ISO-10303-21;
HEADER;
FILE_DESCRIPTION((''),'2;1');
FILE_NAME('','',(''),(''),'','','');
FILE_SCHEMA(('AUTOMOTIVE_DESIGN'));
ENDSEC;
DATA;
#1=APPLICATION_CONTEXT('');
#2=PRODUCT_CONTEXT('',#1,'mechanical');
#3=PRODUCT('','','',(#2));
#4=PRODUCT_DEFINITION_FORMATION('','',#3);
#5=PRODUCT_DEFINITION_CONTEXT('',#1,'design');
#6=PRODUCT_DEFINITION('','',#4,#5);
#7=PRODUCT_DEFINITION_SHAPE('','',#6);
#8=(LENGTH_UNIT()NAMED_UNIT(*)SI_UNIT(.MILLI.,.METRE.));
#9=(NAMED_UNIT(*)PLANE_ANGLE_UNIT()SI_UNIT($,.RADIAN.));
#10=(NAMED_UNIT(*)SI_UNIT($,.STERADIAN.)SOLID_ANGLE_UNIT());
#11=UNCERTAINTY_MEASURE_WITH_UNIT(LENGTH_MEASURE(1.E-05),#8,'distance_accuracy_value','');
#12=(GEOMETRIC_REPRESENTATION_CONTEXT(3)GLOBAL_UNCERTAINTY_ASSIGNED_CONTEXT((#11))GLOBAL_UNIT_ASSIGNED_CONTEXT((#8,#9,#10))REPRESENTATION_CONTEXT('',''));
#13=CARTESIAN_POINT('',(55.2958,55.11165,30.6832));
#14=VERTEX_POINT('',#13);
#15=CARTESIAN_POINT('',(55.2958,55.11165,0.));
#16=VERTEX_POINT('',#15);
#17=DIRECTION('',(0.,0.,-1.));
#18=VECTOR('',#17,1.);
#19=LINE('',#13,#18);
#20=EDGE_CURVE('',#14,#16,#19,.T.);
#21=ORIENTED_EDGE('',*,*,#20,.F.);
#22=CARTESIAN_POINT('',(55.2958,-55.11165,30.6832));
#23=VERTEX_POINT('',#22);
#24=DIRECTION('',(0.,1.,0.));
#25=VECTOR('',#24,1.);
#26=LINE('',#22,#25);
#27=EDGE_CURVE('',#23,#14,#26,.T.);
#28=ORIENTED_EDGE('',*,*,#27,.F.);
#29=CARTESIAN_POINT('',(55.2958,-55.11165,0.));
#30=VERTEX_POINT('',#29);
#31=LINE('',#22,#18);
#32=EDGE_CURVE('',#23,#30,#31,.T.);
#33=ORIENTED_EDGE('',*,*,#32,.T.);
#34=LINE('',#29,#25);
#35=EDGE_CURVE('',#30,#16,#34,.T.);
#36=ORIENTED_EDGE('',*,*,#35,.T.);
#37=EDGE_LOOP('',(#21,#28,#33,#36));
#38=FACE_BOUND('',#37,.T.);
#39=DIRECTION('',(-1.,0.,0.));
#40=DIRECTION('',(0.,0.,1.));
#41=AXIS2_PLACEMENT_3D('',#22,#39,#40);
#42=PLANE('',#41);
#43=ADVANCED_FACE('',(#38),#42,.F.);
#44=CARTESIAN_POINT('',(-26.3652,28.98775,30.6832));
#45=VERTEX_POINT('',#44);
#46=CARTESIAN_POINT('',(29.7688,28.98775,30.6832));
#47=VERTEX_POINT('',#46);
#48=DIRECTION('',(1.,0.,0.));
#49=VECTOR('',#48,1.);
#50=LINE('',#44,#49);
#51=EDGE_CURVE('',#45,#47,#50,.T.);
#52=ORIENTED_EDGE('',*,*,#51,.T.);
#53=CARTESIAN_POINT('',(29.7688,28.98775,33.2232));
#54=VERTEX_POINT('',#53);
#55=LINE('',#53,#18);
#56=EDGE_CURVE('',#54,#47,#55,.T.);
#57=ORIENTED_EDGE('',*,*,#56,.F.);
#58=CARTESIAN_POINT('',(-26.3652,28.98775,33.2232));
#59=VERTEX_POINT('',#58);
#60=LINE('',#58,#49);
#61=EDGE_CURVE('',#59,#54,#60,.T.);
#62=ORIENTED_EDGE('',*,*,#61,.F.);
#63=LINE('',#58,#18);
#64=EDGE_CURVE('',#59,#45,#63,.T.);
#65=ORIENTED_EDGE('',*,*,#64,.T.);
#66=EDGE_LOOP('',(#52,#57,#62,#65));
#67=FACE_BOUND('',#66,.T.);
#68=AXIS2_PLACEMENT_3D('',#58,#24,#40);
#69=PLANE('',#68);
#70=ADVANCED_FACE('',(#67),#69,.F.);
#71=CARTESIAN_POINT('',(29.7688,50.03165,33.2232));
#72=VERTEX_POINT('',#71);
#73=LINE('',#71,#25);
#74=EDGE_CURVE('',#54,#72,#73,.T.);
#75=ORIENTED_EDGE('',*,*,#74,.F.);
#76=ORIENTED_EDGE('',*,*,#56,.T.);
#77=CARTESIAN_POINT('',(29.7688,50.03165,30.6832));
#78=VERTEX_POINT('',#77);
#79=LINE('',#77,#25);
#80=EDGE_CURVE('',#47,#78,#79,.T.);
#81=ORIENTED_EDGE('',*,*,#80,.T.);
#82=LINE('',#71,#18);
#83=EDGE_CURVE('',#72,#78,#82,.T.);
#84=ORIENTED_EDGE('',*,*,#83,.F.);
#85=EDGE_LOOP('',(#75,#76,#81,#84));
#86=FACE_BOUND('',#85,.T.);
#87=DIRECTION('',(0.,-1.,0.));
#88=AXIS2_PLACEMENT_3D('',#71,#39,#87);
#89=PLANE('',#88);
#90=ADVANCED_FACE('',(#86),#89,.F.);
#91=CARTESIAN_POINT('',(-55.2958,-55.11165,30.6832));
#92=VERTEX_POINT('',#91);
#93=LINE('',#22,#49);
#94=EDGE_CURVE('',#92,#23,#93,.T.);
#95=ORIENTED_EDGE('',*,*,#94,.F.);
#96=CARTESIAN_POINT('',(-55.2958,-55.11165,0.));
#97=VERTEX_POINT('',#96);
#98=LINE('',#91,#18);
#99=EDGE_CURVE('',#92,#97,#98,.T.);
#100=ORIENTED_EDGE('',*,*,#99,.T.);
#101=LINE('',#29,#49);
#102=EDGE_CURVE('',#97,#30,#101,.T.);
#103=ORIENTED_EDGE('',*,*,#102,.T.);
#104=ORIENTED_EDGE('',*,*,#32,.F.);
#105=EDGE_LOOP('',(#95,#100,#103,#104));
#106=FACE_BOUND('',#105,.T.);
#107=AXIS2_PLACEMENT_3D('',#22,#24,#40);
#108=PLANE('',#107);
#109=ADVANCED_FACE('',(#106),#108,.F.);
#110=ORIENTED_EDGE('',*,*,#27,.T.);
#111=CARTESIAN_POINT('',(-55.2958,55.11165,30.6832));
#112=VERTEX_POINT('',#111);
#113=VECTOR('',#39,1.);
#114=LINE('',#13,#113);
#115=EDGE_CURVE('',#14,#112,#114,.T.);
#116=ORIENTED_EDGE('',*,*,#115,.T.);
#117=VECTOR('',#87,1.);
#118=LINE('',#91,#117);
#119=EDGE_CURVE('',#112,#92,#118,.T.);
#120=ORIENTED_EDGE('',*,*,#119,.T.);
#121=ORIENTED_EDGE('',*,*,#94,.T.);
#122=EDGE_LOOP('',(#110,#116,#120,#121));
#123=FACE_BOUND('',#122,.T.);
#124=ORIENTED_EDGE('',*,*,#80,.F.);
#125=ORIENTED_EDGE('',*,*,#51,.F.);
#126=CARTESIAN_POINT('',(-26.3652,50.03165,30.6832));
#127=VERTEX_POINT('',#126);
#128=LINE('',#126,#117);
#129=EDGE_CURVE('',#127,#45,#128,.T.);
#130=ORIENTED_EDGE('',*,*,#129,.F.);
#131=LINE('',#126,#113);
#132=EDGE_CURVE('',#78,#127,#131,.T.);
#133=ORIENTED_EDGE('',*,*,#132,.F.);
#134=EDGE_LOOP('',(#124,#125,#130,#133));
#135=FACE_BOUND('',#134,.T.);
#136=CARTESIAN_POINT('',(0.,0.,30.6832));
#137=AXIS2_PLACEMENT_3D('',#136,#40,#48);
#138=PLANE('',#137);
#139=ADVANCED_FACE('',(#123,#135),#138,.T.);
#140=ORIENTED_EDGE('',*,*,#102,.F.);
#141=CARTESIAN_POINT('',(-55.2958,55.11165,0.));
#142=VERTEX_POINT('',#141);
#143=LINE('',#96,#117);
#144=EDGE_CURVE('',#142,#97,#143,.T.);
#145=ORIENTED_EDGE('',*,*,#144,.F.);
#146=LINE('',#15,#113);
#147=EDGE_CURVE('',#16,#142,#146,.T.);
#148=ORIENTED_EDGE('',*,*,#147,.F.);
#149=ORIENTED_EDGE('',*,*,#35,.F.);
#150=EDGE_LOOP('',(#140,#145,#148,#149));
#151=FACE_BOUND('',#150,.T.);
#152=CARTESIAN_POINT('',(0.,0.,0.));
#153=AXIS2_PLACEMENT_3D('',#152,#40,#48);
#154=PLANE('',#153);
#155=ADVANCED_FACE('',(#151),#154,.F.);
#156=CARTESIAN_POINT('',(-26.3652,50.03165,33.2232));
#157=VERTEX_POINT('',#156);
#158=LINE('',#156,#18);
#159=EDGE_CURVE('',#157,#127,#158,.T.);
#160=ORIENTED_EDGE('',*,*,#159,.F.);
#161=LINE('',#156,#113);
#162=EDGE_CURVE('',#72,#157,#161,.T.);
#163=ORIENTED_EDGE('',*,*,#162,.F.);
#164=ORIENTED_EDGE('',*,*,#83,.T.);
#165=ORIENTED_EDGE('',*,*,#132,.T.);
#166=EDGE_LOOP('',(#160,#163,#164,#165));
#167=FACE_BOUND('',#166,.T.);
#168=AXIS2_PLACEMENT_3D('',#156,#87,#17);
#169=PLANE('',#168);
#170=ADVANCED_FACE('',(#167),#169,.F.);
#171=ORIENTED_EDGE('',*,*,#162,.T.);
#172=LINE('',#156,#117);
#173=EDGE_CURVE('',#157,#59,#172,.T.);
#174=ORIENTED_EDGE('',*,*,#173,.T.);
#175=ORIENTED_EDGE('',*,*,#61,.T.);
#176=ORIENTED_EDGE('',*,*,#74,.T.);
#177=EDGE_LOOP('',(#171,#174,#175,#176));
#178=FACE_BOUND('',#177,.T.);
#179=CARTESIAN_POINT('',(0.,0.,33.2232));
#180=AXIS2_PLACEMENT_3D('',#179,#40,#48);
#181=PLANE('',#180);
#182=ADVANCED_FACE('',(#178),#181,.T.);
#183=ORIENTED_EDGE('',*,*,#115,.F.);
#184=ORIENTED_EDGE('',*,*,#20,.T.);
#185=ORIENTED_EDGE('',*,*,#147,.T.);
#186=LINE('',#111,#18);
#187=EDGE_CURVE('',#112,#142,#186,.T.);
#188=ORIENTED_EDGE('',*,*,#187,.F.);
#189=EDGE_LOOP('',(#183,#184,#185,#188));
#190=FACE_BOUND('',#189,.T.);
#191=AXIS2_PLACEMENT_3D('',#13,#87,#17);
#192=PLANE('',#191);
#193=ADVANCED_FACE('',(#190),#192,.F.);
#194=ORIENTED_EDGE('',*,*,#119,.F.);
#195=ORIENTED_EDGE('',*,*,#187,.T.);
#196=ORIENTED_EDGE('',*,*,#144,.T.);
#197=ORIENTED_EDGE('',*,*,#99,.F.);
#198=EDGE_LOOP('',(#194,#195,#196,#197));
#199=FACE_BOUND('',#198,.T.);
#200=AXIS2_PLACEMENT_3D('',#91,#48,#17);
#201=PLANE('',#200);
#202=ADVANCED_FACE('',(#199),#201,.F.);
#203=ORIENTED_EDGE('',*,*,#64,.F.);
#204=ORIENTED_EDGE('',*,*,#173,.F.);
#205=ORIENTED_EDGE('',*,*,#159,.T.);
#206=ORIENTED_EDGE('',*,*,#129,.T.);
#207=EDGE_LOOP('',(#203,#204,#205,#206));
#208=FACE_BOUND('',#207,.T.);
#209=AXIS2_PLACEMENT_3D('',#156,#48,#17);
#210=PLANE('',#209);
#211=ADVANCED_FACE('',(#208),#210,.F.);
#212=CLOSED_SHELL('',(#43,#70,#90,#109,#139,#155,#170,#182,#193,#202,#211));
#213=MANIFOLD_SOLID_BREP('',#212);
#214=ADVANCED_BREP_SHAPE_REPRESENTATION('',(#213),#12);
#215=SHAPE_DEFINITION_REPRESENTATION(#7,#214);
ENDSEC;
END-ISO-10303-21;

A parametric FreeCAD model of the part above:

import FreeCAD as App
import Part
import Sketcher
Q = App.Units.Quantity


def add_polygon(sketch, points):
    """Adds a closed chain of lines whose ends are joined by coincident constraints."""
    first, n = sketch.GeometryCount, len(points)
    for a, b in zip(points, points[1:] + points[:1]):
        sketch.addGeometry(Part.LineSegment(App.Vector(*a, 0), App.Vector(*b, 0)), False)
    for i in range(n):
        sketch.addConstraint(Sketcher.Constraint("Coincident", first + i, 2, first + (i + 1) % n, 1))

doc = App.newDocument("Part")
body = doc.addObject("PartDesign::Body", "Body")

sketch1 = body.newObject("Sketcher::SketchObject", "Sketch")
sketch1.AttachmentSupport = (doc.getObject("XY_Plane"), [""])
sketch1.MapMode = "FlatFace"
add_polygon(sketch1, [(-55, 55), (-55, -55), (55, -55), (55, 55)])
sketch1.addConstraint(Sketcher.Constraint("Vertical", 0))
sketch1.addConstraint(Sketcher.Constraint("Horizontal", 1))
sketch1.addConstraint(Sketcher.Constraint("Vertical", 2))
sketch1.addConstraint(Sketcher.Constraint("Horizontal", 3))
sketch1.addConstraint(Sketcher.Constraint("Symmetric", 0, 2, 2, 2, -1, 1))
sketch1.addConstraint(Sketcher.Constraint("DistanceX", 1, 1, 1, 2, Q("4.354 in")))
sketch1.addConstraint(Sketcher.Constraint("DistanceY", 0, 2, 0, 1, Q("4.3395 in")))
pad1 = body.newObject("PartDesign::Pad", "Pad")
pad1.Profile = sketch1
pad1.Length = Q("1.208 in")

sketch2 = body.newObject("Sketcher::SketchObject", "Sketch001")
sketch2.AttachmentSupport = (doc.getObject("XY_Plane"), [""])
sketch2.MapMode = "FlatFace"
sketch2.AttachmentOffset = App.Placement(App.Vector(0, 0, 1.208 * 25.4), App.Rotation())
add_polygon(sketch2, [(-26, 50), (-26, 29), (30, 29), (30, 50)])
sketch2.addConstraint(Sketcher.Constraint("Vertical", 0))
sketch2.addConstraint(Sketcher.Constraint("Horizontal", 1))
sketch2.addConstraint(Sketcher.Constraint("Vertical", 2))
sketch2.addConstraint(Sketcher.Constraint("Horizontal", 3))
sketch2.addConstraint(Sketcher.Constraint("DistanceX", 1, 1, 1, 2, Q("2.21 in")))
sketch2.addConstraint(Sketcher.Constraint("DistanceY", 0, 2, 0, 1, Q("0.8285 in")))
sketch2.addConstraint(Sketcher.Constraint("DistanceX", 0, 2, -1, 1, Q("1.038 in")))
sketch2.addConstraint(Sketcher.Constraint("DistanceY", -1, 1, 0, 2, 28.98775))
pad2 = body.newObject("PartDesign::Pad", "Pad001")
pad2.Profile = sketch2
pad2.Length = Q("0.1 in")

doc.recompute()
